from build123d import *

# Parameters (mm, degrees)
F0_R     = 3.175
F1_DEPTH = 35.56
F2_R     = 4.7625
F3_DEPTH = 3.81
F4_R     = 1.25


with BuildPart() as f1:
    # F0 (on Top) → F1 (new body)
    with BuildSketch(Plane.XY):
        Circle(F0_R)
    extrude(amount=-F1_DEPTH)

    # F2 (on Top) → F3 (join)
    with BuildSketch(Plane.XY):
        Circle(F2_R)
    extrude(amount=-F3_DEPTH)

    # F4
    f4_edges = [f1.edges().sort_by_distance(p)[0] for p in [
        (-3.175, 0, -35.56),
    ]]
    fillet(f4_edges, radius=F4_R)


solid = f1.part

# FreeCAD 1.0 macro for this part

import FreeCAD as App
import Part
import Sketcher

V = App.Vector
Q = App.Units.Quantity


def edges_at(feature, points):
    """Names of the edges that pass closest to the given points."""
    edges = feature.Shape.Edges
    near = lambda p: min(range(len(edges)), key=lambda i: edges[i].distToShape(Part.Vertex(*p))[0])
    return sorted({f"Edge{near(p) + 1}" for p in points})

doc = App.newDocument("Part")
body = doc.addObject("PartDesign::Body", "Body")

sketch1 = body.newObject("Sketcher::SketchObject", "Sketch")
sketch1.AttachmentSupport = (doc.getObject("XY_Plane"), [""])
sketch1.MapMode = "FlatFace"
sketch1.addGeometry(Part.Circle(V(0, 0, 0), V(0, 0, 1), 3.175), False)
sketch1.addConstraint([
    Sketcher.Constraint("Coincident", 0, 3, -1, 1),
    Sketcher.Constraint("Diameter", 0, Q("0.25 in")),
])
pad1 = body.newObject("PartDesign::Pad", "Pad")
pad1.Profile = sketch1
pad1.Length = Q("1.4 in")
pad1.Reversed = True

sketch2 = body.newObject("Sketcher::SketchObject", "Sketch001")
sketch2.AttachmentSupport = (doc.getObject("XY_Plane"), [""])
sketch2.MapMode = "FlatFace"
sketch2.addGeometry(Part.Circle(V(0, 0, 0), V(0, 0, 1), 4.7625), False)
sketch2.addConstraint([
    Sketcher.Constraint("Coincident", 0, 3, -1, 1),
    Sketcher.Constraint("Diameter", 0, Q("0.375 in")),
])
pad2 = body.newObject("PartDesign::Pad", "Pad001")
pad2.Profile = sketch2
pad2.Length = Q("0.15 in")
pad2.Reversed = True
doc.recompute()

fillet = body.newObject("PartDesign::Fillet", "Fillet")
fillet.Base = (pad2, edges_at(pad2, [(-3.175, 0, -35.56)]))
fillet.Radius = 1.25

doc.recompute()
